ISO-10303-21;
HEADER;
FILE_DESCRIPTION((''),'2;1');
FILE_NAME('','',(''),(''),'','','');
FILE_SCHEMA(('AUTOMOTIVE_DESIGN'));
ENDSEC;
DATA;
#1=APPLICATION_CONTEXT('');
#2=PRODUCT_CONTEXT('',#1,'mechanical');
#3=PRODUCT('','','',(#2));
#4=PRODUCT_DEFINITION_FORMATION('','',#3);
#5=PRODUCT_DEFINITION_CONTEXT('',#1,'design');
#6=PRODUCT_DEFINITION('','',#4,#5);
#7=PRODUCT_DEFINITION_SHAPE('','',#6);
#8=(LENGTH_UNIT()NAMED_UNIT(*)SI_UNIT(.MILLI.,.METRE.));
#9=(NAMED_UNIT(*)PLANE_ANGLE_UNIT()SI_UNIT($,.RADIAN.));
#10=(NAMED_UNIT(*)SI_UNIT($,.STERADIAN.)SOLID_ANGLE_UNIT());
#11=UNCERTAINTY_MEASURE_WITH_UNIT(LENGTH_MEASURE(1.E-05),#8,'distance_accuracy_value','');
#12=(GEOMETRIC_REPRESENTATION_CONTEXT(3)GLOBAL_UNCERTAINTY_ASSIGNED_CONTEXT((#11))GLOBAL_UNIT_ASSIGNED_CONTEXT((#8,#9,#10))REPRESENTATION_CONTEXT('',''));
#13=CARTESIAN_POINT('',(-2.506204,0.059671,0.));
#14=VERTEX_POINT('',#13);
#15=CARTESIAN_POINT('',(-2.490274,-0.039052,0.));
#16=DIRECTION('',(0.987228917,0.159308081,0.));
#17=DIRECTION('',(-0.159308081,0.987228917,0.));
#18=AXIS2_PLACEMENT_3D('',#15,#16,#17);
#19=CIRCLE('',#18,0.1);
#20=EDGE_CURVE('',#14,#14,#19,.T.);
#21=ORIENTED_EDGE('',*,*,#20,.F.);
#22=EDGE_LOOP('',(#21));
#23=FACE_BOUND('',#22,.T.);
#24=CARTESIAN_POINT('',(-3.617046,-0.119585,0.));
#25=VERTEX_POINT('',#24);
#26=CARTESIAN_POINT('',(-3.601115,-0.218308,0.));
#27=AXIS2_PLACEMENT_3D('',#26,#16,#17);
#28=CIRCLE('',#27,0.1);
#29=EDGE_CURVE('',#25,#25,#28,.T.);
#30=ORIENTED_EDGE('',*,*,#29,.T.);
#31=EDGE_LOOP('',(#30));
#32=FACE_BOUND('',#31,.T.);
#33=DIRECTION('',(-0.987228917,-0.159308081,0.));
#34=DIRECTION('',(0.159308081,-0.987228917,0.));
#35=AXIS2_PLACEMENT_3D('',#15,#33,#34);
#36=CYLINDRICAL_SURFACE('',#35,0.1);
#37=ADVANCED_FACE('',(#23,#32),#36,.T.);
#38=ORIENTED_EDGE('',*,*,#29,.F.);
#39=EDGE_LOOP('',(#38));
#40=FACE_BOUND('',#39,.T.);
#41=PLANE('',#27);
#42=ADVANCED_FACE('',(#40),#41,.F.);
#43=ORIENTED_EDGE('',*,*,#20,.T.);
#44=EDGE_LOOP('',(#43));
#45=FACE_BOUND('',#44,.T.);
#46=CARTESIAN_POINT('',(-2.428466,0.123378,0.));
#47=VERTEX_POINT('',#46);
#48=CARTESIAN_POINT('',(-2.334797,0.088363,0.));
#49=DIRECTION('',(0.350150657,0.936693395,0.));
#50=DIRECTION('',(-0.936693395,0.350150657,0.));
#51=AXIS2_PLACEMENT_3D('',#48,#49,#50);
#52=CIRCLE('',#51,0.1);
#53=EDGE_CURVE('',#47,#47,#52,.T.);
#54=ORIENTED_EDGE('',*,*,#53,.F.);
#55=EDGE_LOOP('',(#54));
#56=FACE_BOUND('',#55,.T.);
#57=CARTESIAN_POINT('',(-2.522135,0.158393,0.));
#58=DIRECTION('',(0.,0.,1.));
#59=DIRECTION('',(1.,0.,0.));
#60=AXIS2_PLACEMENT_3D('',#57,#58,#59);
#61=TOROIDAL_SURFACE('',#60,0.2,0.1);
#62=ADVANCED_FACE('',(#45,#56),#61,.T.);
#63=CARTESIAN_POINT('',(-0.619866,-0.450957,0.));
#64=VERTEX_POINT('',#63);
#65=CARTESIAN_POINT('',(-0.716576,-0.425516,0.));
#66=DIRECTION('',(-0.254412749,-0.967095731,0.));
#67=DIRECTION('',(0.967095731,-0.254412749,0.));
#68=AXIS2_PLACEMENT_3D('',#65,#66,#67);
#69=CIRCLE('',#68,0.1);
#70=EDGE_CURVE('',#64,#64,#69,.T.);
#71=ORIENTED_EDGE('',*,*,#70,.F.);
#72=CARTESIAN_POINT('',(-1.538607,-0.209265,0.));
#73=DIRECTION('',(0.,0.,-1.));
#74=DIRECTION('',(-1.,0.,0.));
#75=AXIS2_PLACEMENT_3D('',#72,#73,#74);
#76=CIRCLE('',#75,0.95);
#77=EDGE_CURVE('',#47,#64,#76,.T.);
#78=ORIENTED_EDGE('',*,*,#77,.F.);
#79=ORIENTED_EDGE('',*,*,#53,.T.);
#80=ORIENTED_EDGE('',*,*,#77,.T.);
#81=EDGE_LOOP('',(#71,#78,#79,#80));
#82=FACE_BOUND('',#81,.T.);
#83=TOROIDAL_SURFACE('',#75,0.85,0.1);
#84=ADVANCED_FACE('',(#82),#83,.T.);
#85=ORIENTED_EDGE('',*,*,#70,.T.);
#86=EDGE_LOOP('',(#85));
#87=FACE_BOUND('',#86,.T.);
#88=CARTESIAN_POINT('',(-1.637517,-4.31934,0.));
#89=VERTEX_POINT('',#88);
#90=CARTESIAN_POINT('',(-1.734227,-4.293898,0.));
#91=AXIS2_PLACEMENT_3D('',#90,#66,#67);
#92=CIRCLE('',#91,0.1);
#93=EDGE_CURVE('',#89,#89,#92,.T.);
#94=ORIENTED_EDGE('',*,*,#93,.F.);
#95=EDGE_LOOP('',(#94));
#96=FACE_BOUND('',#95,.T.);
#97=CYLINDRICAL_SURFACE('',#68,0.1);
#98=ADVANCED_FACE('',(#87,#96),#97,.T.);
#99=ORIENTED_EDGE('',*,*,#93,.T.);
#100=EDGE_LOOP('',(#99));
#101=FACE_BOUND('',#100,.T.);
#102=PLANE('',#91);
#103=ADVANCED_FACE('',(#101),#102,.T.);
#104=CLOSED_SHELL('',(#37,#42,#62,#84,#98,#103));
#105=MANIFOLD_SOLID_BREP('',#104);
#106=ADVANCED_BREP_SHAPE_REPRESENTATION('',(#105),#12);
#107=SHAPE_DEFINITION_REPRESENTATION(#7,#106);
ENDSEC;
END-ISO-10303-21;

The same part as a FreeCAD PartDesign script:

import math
import FreeCAD as App
import Part
import Sketcher

V = App.Vector
Q = App.Units.Quantity

doc = App.newDocument("Part")
body = doc.addObject("PartDesign::Body", "Body")

sketch1 = doc.addObject("Sketcher::SketchObject", "Sketch")
body.addObject(sketch1)
sketch1.Placement = App.Placement(V(-3.601115, -0.218308, 0), App.Rotation(V(0, 0, -1), V(-0.159308081, 0.987228917, 0), V(0.987228917, 0.159308081, 0), "ZXY"))
sketch1.addGeometry(Part.Circle(V(0, 0, 0), V(0, 0, 1), 0.1), False)
sketch1.addConstraint([
    Sketcher.Constraint("Coincident", 0, 3, -1, 1),
    Sketcher.Constraint("Diameter", 0, Q("0.2 mm")),
])

sketch2 = doc.addObject("Sketcher::SketchObject", "Sketch001")
body.addObject(sketch2)
sketch2.AttachmentSupport = (doc.XY_Plane, [""])
sketch2.MapMode = "FlatFace"
sketch2.addGeometry([
    Part.LineSegment(V(-3.6, -0.22, 0), V(-2.49, -0.04, 0)),
    Part.ArcOfCircle(Part.Circle(V(-2.52, 0.16, 0), V(0, 0, 1), 0.2), math.radians(-81), math.radians(-20)),
    Part.ArcOfCircle(Part.Circle(V(-1.54, -0.21, 0), V(0, 0, 1), 0.85), math.radians(-15), math.radians(160)),
    Part.LineSegment(V(-0.72, -0.43, 0), V(-1.73, -4.29, 0)),
], False)
sketch2.addConstraint([
    Sketcher.Constraint("Tangent", 0, 2, 1, 1),
    Sketcher.Constraint("Tangent", 1, 2, 2, 2),
    Sketcher.Constraint("Tangent", 2, 1, 3, 1),
    Sketcher.Constraint("Radius", 1, Q("0.2 mm")),
    Sketcher.Constraint("Radius", 2, Q("0.85 mm")),
    Sketcher.Constraint("Distance", 3, Q("4 mm")),
    Sketcher.Constraint("DistanceY", 3, 2, -1, 1, Q("4.293898 mm")),
    Sketcher.Constraint("DistanceY", 0, 1, 1, 3, Q("0.376701 mm")),
    Sketcher.Constraint("Distance", 0, Q("1.125211 mm")),
    Sketcher.Constraint("DistanceX", 1, 3, 2, 3, Q("0.983528 mm")),
    Sketcher.Constraint("DistanceX", 2, 3, 2, 1, Q("0.822031 mm")),
    Sketcher.Constraint("DistanceX", 1, 3, -1, 1, Q("2.522135 mm")),
])
doc.recompute()

additivepipe = doc.addObject("PartDesign::AdditivePipe", "AdditivePipe")
body.addObject(additivepipe)
additivepipe.Profile = sketch1
additivepipe.Spine = (sketch2, ["Edge1", "Edge2", "Edge3", "Edge4"])

doc.recompute()
